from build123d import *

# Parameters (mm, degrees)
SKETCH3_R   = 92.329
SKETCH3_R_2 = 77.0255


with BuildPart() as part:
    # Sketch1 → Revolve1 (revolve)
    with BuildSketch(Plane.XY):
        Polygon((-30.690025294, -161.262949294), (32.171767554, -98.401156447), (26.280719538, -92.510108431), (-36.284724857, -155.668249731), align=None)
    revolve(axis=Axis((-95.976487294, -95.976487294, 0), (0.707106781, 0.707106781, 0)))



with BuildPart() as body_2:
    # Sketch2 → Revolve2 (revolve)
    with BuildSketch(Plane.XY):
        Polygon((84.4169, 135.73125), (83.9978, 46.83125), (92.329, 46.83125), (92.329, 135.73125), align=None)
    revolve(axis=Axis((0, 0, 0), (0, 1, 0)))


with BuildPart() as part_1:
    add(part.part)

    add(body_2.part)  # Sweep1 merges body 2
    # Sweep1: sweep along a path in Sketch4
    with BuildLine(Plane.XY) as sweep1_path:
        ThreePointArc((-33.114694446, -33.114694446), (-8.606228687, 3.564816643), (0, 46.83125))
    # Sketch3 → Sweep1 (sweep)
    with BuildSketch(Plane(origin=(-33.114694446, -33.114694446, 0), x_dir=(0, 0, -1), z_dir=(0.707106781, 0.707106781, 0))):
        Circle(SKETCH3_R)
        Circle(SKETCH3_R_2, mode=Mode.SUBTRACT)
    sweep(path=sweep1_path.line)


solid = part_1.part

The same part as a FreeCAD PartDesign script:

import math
import FreeCAD as App
import Part
import Sketcher
Q = App.Units.Quantity


def add_polygon(sketch, points):
    """Adds a closed chain of lines whose ends are joined by coincident constraints."""
    first, n = sketch.GeometryCount, len(points)
    for a, b in zip(points, points[1:] + points[:1]):
        sketch.addGeometry(Part.LineSegment(App.Vector(*a, 0), App.Vector(*b, 0)), False)
    for i in range(n):
        sketch.addConstraint(Sketcher.Constraint("Coincident", first + i, 2, first + (i + 1) % n, 1))

doc = App.newDocument("Part")
body = doc.addObject("PartDesign::Body", "Body")

sketch1 = doc.addObject("Sketcher::SketchObject", "Sketch")
body.addObject(sketch1)
sketch1.AttachmentSupport = (doc.XY_Plane, [""])
sketch1.MapMode = "FlatFace"
add_polygon(sketch1, [(-31, -161), (32, -98), (26, -93), (-36, -156)])
sketch1.addGeometry(Part.LineSegment(App.Vector(-96, -96, 0), App.Vector(-33, -33, 0)), True)
sketch1.addConstraint([
    Sketcher.Constraint("Perpendicular", 0, 1),
    Sketcher.Constraint("Parallel", 1, 3),
    Sketcher.Constraint("Perpendicular", 3, 4),
    Sketcher.Constraint("Equal", 0, 4),
    Sketcher.Constraint("Angle", 0, Q("45 deg")),
    Sketcher.Constraint("Distance", 0, Q("3.5 in")),
    Sketcher.Constraint("Distance", 1, Q("0.328 in")),
    Sketcher.Constraint("Distance", 3, Q("0.3115 in")),
    Sketcher.Constraint("DistanceX", -1, 1, 1, 2, 26.28072),
    Sketcher.Constraint("DistanceY", 1, 2, -1, 1, 92.510108),
    Sketcher.Constraint("DistanceX", 4, 1, 3, 2, 65.286462),
    Sketcher.Constraint("DistanceY", 4, 1, 1, 2, 3.466379),
])
revolution = doc.addObject("PartDesign::Revolution", "Revolution")
body.addObject(revolution)
revolution.Profile = sketch1
revolution.ReferenceAxis = (sketch1, ["Axis0"])
revolution.Angle = 360
body2 = doc.addObject("PartDesign::Body", "Body001")

sketch2 = doc.addObject("Sketcher::SketchObject", "Sketch001")
body2.addObject(sketch2)
sketch2.AttachmentSupport = (doc.getObject("XY_Plane001"), [""])
sketch2.MapMode = "FlatFace"
add_polygon(sketch2, [(84, 136), (84, 47), (92, 47), (92, 136)])
sketch2.addConstraint([
    Sketcher.Constraint("Horizontal", 1),
    Sketcher.Constraint("Vertical", 2),
    Sketcher.Constraint("Horizontal", 3),
    Sketcher.Constraint("DistanceY", 2, 1, 2, 2, Q("3.5 in")),
    Sketcher.Constraint("DistanceX", 1, 1, 1, 2, Q("0.328 in")),
    Sketcher.Constraint("DistanceX", 3, 2, 3, 1, Q("0.3115 in")),
    Sketcher.Constraint("DistanceX", -1, 1, 0, 2, Q("3.307 in")),
    Sketcher.Constraint("DistanceY", -1, 1, 0, 2, Q("1.84375 in")),
])
revolution2 = doc.addObject("PartDesign::Revolution", "Revolution001")
body2.addObject(revolution2)
revolution2.Profile = sketch2
revolution2.ReferenceAxis = (sketch2, ["V_Axis"])
revolution2.Angle = 360
body.AllowCompound = True
doc.recompute()

boolean = doc.addObject("PartDesign::Boolean", "Boolean")
body.addObject(boolean)
boolean.Type = "Fuse"
boolean.addObjects([body2])

sketch3 = doc.addObject("Sketcher::SketchObject", "Sketch002")
body.addObject(sketch3)
sketch3.Placement = App.Placement(App.Vector(-33.114694, -33.114694, 0), App.Rotation(App.Vector(0, 0, -1), App.Vector(-0.707106781, 0.707106781, 0), App.Vector(0.707106781, 0.707106781, 0), "ZXY"))
sketch3.addGeometry([
    Part.Circle(App.Vector(0, 0, 0), App.Vector(0, 0, 1), 92),
    Part.Circle(App.Vector(0, 0, 0), App.Vector(0, 0, 1), 77),
], False)
sketch3.addConstraint([
    Sketcher.Constraint("Coincident", 0, 3, -1, 1),
    Sketcher.Constraint("Coincident", 1, 3, -1, 1),
    Sketcher.Constraint("Diameter", 0, Q("7.27 in")),
    Sketcher.Constraint("Diameter", 1, Q("6.065 in")),
])

sketch4 = doc.addObject("Sketcher::SketchObject", "Sketch003")
body.addObject(sketch4)
sketch4.AttachmentSupport = (doc.XY_Plane, [""])
sketch4.MapMode = "FlatFace"
sketch4.addGeometry(Part.ArcOfCircle(Part.Circle(App.Vector(-113, 47, 0), App.Vector(0, 0, 1), 113), math.radians(-45), math.radians(0)), False)
sketch4.addConstraint([
    Sketcher.Constraint("PointOnObject", 0, 2, -2),
    Sketcher.Constraint("DistanceY", -1, 1, 0, 3, Q("1.84375 in")),
    Sketcher.Constraint("DistanceY", -1, 1, 0, 2, Q("1.84375 in")),
    Sketcher.Constraint("Radius", 0, 113.060639),
    Sketcher.Constraint("DistanceX", 0, 1, -1, 1, 33.114694),
])
doc.recompute()

additivepipe = doc.addObject("PartDesign::AdditivePipe", "AdditivePipe")
body.addObject(additivepipe)
additivepipe.Profile = sketch3
additivepipe.Spine = (sketch4, ["Edge1"])

doc.recompute()
